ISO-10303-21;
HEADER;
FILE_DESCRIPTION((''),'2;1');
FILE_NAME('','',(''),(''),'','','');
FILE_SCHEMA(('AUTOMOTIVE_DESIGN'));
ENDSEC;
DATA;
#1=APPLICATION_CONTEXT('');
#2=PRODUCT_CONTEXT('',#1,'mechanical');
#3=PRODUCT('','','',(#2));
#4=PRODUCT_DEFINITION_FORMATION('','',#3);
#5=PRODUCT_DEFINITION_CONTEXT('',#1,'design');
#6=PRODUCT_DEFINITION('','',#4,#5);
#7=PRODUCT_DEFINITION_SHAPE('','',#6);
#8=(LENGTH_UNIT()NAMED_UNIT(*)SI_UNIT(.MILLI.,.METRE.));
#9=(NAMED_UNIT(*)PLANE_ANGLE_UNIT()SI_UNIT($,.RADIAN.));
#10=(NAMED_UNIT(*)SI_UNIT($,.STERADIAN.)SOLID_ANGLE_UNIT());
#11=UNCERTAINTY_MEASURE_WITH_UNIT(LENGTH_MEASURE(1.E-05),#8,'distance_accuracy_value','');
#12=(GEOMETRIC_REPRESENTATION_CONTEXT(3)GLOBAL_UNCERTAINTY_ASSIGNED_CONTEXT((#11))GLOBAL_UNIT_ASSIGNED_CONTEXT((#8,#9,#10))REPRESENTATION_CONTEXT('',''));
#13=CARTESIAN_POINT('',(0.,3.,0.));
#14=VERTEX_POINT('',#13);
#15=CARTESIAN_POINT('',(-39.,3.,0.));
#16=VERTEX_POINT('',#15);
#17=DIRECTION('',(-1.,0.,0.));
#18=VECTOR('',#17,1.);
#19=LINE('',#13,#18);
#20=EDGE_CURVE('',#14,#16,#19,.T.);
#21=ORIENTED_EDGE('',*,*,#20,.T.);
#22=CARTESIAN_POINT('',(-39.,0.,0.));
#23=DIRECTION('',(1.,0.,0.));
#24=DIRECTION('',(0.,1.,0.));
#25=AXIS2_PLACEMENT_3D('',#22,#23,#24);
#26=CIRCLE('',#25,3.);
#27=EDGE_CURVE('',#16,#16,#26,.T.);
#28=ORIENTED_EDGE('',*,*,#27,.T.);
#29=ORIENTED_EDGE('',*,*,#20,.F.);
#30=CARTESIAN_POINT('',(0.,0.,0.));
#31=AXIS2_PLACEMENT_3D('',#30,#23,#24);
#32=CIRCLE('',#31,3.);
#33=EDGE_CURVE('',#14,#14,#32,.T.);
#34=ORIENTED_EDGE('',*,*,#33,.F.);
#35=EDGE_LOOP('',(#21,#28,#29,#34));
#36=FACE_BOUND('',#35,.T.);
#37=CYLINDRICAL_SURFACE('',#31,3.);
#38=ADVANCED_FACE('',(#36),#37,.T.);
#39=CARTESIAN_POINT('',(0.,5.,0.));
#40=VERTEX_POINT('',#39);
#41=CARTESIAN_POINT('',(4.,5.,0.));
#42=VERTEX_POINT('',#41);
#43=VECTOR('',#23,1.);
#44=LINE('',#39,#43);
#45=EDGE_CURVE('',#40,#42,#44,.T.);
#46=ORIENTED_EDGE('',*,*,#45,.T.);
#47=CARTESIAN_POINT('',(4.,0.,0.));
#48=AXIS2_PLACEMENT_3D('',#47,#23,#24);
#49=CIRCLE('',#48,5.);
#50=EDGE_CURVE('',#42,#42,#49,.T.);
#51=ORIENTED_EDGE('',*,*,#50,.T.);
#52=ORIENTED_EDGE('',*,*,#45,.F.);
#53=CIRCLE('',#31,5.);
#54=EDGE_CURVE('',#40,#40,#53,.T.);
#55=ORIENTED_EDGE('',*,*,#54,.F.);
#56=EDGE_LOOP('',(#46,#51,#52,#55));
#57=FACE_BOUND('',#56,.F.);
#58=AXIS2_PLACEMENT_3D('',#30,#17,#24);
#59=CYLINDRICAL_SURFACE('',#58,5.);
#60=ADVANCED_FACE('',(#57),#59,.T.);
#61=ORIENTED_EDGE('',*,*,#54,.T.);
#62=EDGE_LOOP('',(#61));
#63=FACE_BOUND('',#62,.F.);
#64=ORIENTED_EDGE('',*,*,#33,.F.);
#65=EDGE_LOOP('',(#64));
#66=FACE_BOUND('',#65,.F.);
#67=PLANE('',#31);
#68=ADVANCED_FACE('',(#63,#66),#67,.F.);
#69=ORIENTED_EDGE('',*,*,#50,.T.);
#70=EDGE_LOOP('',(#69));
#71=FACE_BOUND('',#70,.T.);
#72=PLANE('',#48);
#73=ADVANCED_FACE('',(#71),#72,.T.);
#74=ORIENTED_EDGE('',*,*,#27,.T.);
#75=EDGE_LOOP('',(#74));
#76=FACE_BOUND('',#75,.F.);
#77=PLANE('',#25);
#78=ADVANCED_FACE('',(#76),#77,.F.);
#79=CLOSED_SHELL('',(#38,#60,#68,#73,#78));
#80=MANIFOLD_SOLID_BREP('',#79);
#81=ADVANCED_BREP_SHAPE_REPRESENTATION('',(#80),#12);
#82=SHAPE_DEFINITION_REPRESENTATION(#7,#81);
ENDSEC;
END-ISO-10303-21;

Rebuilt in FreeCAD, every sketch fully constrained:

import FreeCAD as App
import Part
import Sketcher

doc = App.newDocument("Part")
params = doc.addObject("Spreadsheet::Sheet", "Params")
for row, (alias, value) in enumerate([
    ("sketch1_diameter", "6 mm"),
    ("pad1_length", "39 mm"),
    ("sketch2_diameter", "10 mm"),
    ("pad2_length", "4 mm"),
], start=1):
    params.set(f"A{row}", alias)
    params.set(f"B{row}", "=" + value)
    params.setAlias(f"B{row}", alias)

body = doc.addObject("PartDesign::Body", "Body")

sketch1 = doc.addObject("Sketcher::SketchObject", "Sketch")
body.addObject(sketch1)
sketch1.AttachmentSupport = (doc.YZ_Plane, [""])
sketch1.MapMode = "FlatFace"
sketch1.addGeometry(Part.Circle(App.Vector(0, 0, 0), App.Vector(0, 0, 1), 3), False)
sketch1.addConstraint([
    Sketcher.Constraint("Coincident", 0, 3, -1, 1),
    Sketcher.Constraint("Diameter", 0, 6.0),
])
sketch1.setExpression("Constraints[1]", "Params.sketch1_diameter")
pad1 = doc.addObject("PartDesign::Pad", "Pad")
body.addObject(pad1)
pad1.Profile = sketch1
pad1.setExpression("Length", "Params.pad1_length")
pad1.Reversed = True

sketch2 = doc.addObject("Sketcher::SketchObject", "Sketch001")
body.addObject(sketch2)
sketch2.AttachmentSupport = (doc.YZ_Plane, [""])
sketch2.MapMode = "FlatFace"
sketch2.addGeometry(Part.Circle(App.Vector(0, 0, 0), App.Vector(0, 0, 1), 5), False)
sketch2.addConstraint([
    Sketcher.Constraint("Coincident", 0, 3, -1, 1),
    Sketcher.Constraint("Diameter", 0, 10.0),
])
sketch2.setExpression("Constraints[1]", "Params.sketch2_diameter")
pad2 = doc.addObject("PartDesign::Pad", "Pad001")
body.addObject(pad2)
pad2.Profile = sketch2
pad2.setExpression("Length", "Params.pad2_length")

doc.recompute()
